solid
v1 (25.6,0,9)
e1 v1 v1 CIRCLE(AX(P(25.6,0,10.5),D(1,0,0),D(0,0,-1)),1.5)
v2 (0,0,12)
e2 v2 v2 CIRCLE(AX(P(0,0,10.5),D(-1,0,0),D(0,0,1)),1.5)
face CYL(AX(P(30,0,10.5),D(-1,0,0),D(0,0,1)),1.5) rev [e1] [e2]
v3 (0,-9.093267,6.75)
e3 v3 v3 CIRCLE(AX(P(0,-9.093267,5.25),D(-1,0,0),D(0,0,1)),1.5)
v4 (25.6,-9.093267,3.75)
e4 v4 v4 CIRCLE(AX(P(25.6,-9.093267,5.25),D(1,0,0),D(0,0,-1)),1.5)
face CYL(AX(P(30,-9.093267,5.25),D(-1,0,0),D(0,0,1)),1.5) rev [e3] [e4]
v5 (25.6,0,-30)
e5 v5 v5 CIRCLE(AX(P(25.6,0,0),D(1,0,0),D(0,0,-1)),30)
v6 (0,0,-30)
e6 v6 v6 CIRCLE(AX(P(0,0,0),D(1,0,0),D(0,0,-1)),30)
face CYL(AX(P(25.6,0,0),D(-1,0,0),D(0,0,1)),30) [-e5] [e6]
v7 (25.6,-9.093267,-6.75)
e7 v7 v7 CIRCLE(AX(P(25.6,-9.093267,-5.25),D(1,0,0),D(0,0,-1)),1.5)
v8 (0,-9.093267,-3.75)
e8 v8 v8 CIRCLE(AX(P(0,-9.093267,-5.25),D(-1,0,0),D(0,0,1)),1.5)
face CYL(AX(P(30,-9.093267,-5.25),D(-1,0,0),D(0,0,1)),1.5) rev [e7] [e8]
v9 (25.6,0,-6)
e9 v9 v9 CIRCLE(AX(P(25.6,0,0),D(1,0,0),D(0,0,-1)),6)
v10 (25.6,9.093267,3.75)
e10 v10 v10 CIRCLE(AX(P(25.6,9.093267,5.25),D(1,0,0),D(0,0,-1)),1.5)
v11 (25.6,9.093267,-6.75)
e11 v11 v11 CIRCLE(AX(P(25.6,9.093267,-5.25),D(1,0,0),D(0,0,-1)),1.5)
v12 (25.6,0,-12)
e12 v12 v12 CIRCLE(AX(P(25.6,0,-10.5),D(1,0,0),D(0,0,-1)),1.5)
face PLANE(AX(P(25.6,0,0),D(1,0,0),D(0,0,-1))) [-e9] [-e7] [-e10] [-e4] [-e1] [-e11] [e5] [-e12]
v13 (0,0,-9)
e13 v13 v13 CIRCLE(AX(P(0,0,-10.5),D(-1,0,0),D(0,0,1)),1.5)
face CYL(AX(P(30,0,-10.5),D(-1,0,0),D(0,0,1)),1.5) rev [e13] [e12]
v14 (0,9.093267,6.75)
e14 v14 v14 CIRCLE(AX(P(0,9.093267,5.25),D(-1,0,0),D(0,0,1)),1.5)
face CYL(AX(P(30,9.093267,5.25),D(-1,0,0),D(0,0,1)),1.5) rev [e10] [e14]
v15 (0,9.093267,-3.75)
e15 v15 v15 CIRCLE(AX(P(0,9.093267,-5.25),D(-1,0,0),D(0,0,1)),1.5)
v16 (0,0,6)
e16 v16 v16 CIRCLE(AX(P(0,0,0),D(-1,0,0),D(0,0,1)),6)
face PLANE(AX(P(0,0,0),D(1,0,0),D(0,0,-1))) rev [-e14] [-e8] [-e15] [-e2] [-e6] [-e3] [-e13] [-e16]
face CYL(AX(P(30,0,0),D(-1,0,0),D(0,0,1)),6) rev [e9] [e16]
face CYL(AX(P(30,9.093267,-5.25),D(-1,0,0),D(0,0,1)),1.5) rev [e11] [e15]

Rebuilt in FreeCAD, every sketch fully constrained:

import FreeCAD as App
import Part
import Sketcher
from FreeCAD import Vector
Q = App.Units.Quantity

doc = App.newDocument("Part")
params = doc.addObject("Spreadsheet::Sheet", "Params")
for row, (alias, value) in enumerate([
    ("sketch1_diameter", "60 mm"),
    ("pad1_length", "25.6 mm"),
    ("sketch2_diameter", "12 mm"),
    ("sketch2_diameter2", "3 mm"),
    ("pocket1_length", "30 mm"),
], start=1):
    params.set(f"A{row}", alias)
    params.set(f"B{row}", "=" + value)
    params.setAlias(f"B{row}", alias)

body = doc.addObject("PartDesign::Body", "Body")

sketch1 = doc.addObject("Sketcher::SketchObject", "Sketch")
body.addObject(sketch1)
sketch1.AttachmentSupport = (doc.YZ_Plane, [""])
sketch1.MapMode = "FlatFace"
sketch1.addGeometry(Part.Circle(Vector(0, 0, 0), Vector(0, 0, 1), 30), False)
sketch1.addConstraint(Sketcher.Constraint("Coincident", 0, 3, -1, 1))
sketch1.addConstraint(Sketcher.Constraint("Diameter", 0, Q("60 mm")))
sketch1.setExpression("Constraints[1]", "Params.sketch1_diameter")
pad1 = doc.addObject("PartDesign::Pad", "Pad")
body.addObject(pad1)
pad1.Profile = sketch1
pad1.setExpression("Length", "Params.pad1_length")

sketch2 = doc.addObject("Sketcher::SketchObject", "Sketch001")
body.addObject(sketch2)
sketch2.AttachmentSupport = (doc.YZ_Plane, [""])
sketch2.MapMode = "FlatFace"
sketch2.addGeometry(Part.Circle(Vector(0, 0, 0), Vector(0, 0, 1), 6), False)
sketch2.addGeometry(Part.Circle(Vector(0, 10.5, 0), Vector(0, 0, 1), 1.5), False)
sketch2.addGeometry(Part.Circle(Vector(-9.1, 5.2, 0), Vector(0, 0, 1), 1.5), False)
sketch2.addGeometry(Part.Circle(Vector(-9.1, -5.2, 0), Vector(0, 0, 1), 1.5), False)
sketch2.addGeometry(Part.Circle(Vector(0, -10.5, 0), Vector(0, 0, 1), 1.5), False)
sketch2.addGeometry(Part.Circle(Vector(9.1, -5.2, 0), Vector(0, 0, 1), 1.5), False)
sketch2.addGeometry(Part.Circle(Vector(9.1, 5.2, 0), Vector(0, 0, 1), 1.5), False)
sketch2.addConstraint(Sketcher.Constraint("Coincident", 0, 3, -1, 1))
sketch2.addConstraint(Sketcher.Constraint("Equal", 1, 2))
sketch2.addConstraint(Sketcher.Constraint("Equal", 2, 3))
sketch2.addConstraint(Sketcher.Constraint("Equal", 3, 4))
sketch2.addConstraint(Sketcher.Constraint("Equal", 4, 5))
sketch2.addConstraint(Sketcher.Constraint("Equal", 5, 6))
sketch2.addConstraint(Sketcher.Constraint("Symmetric", 1, 3, 4, 3, -1, 1))
sketch2.addConstraint(Sketcher.Constraint("Symmetric", 2, 3, 5, 3, -1, 1))
sketch2.addConstraint(Sketcher.Constraint("Symmetric", 3, 3, 6, 3, -1, 1))
sketch2.addConstraint(Sketcher.Constraint("Symmetric", 3, 3, 5, 3, -2))
sketch2.addConstraint(Sketcher.Constraint("PointOnObject", 1, 3, -2))
sketch2.addConstraint(Sketcher.Constraint("Diameter", 0, Q("12 mm")))
sketch2.addConstraint(Sketcher.Constraint("Diameter", 1, Q("3 mm")))
sketch2.addConstraint(Sketcher.Constraint("DistanceY", 4, 3, 1, 3, Q("21 mm")))
sketch2.addConstraint(Sketcher.Constraint("DistanceY", 3, 3, 2, 3, Q("10.5 mm")))
sketch2.addConstraint(Sketcher.Constraint("DistanceX", 2, 3, -1, 1, Q("9.093267 mm")))
sketch2.setExpression("Constraints[11]", "Params.sketch2_diameter")
sketch2.setExpression("Constraints[12]", "Params.sketch2_diameter2")
pocket1 = doc.addObject("PartDesign::Pocket", "Pocket")
body.addObject(pocket1)
pocket1.Profile = sketch2
pocket1.setExpression("Length", "Params.pocket1_length")
pocket1.Reversed = True

doc.recompute()
